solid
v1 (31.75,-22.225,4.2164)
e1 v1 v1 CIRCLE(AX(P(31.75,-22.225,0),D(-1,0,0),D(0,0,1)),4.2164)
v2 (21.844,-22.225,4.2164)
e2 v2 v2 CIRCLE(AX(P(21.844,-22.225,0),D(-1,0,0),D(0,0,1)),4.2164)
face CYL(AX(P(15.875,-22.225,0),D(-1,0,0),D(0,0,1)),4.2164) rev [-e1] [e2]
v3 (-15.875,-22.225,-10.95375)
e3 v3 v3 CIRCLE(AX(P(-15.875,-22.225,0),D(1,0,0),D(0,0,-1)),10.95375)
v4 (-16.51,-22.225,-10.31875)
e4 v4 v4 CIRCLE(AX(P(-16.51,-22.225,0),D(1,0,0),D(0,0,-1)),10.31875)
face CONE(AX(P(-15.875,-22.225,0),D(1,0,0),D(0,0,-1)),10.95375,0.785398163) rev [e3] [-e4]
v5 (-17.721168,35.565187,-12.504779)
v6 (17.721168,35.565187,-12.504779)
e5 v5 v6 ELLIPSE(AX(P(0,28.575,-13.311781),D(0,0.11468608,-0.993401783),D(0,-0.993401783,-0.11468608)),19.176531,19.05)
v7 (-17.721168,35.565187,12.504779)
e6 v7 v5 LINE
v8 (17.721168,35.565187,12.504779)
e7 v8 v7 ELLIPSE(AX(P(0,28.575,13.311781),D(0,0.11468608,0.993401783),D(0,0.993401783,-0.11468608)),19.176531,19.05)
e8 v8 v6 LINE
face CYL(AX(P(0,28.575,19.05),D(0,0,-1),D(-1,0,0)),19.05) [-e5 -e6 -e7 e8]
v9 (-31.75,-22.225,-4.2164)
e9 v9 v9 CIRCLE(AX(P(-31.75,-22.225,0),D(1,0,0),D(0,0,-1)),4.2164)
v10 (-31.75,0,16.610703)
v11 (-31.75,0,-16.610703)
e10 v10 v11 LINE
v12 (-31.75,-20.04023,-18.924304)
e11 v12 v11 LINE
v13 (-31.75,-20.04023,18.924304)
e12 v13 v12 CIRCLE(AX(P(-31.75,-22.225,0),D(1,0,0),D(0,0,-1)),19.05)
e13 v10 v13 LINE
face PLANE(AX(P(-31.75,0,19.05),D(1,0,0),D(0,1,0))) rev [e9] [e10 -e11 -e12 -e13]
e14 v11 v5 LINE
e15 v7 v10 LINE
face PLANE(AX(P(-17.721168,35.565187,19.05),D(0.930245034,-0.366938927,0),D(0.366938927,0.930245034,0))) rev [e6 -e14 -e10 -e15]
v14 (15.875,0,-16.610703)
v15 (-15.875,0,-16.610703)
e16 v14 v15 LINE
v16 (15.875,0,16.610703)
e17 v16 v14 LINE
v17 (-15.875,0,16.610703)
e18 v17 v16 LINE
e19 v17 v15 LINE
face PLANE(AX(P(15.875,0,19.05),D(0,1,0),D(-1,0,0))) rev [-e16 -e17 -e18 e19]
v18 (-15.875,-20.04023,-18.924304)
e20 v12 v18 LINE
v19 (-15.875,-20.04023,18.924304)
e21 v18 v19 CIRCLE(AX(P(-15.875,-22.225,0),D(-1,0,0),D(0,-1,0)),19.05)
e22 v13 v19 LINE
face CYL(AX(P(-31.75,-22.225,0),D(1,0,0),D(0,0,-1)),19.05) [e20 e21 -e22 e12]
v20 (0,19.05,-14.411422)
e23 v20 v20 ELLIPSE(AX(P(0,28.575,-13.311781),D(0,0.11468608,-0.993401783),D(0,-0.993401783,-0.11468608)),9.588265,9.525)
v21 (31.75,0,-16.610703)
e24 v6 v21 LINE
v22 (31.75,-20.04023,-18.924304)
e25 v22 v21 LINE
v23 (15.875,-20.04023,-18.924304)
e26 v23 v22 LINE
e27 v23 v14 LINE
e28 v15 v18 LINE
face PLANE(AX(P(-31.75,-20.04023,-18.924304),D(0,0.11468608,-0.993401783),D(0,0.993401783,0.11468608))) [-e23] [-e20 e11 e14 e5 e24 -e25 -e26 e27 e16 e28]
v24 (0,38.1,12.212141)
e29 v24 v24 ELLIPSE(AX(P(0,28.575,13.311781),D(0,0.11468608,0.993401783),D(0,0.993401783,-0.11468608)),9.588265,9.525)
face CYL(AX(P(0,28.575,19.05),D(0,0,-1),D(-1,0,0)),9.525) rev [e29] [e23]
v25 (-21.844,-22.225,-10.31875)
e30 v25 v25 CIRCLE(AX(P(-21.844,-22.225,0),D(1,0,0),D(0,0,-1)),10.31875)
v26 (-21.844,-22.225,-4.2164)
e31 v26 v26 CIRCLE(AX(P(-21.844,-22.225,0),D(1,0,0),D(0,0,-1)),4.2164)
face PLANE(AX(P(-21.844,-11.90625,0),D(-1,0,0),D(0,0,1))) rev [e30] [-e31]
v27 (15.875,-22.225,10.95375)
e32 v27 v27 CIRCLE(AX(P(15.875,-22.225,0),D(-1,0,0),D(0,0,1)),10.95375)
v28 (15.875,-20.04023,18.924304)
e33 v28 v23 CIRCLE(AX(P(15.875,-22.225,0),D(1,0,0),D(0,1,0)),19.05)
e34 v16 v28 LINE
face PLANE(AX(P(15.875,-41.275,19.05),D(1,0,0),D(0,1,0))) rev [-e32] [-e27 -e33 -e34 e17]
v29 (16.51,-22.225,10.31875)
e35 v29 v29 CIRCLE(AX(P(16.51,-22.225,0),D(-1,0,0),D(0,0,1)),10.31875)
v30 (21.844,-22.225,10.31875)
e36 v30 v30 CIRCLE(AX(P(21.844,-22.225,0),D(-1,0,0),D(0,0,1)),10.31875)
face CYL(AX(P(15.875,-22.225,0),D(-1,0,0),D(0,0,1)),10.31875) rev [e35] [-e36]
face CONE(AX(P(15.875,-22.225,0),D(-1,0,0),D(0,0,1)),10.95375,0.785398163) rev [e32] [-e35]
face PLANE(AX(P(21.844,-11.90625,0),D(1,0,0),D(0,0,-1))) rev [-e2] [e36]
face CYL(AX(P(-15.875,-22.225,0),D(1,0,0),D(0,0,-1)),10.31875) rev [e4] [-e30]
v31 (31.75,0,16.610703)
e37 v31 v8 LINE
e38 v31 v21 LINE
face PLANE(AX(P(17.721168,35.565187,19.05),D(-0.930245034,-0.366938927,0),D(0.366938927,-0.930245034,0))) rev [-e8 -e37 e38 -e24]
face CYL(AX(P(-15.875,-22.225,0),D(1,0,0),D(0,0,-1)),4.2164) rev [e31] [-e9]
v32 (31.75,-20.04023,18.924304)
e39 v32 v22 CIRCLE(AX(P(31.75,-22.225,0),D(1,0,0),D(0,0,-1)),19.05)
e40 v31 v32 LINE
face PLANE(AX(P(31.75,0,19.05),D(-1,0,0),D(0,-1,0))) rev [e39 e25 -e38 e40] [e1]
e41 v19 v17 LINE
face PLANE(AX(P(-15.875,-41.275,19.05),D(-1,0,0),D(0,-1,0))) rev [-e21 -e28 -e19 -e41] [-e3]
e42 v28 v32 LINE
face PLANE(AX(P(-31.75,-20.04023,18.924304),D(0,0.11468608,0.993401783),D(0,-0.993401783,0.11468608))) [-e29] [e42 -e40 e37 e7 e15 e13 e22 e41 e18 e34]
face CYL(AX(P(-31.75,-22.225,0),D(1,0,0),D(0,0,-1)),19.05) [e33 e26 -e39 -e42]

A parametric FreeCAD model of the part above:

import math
import FreeCAD as App
import Part
import Sketcher

V = App.Vector
Q = App.Units.Quantity


def add_polygon(sketch, points):
    """Adds a closed chain of lines whose ends are joined by coincident constraints."""
    first, n = sketch.GeometryCount, len(points)
    for a, b in zip(points, points[1:] + points[:1]):
        sketch.addGeometry(Part.LineSegment(App.Vector(*a, 0), App.Vector(*b, 0)), False)
    for i in range(n):
        sketch.addConstraint(Sketcher.Constraint("Coincident", first + i, 2, first + (i + 1) % n, 1))

doc = App.newDocument("Part")
body = doc.addObject("PartDesign::Body", "Body")

sketch1 = body.newObject("Sketcher::SketchObject", "Sketch")
sketch1.AttachmentSupport = (doc.getObject("XY_Plane"), [""])
sketch1.MapMode = "FlatFace"
sketch1.addGeometry([
    Part.LineSegment(V(31.75, 0, 0), V(17.721168, 35.565187, 0)),
    Part.ArcOfCircle(Part.Circle(V(0, 28.575, 0), V(0, 0, 1), 19.05), math.radians(21.526956), math.radians(158.473044)),
    Part.LineSegment(V(-17.721168, 35.565187, 0), V(-31.75, 0, 0)),
    Part.LineSegment(V(-31.75, 0, 0), V(-31.75, -41.275, 0)),
    Part.LineSegment(V(-31.75, -41.275, 0), V(-15.875, -41.275, 0)),
    Part.LineSegment(V(-15.875, -41.275, 0), V(-15.875, 0, 0)),
    Part.LineSegment(V(-15.875, 0, 0), V(15.875, 0, 0)),
    Part.LineSegment(V(15.875, 0, 0), V(15.875, -41.275, 0)),
    Part.LineSegment(V(15.875, -41.275, 0), V(31.75, -41.275, 0)),
    Part.LineSegment(V(31.75, -41.275, 0), V(31.75, 0, 0)),
    Part.Circle(V(0, 28.575, 0), V(0, 0, 1), 9.525),
], False)
sketch1.addConstraint([
    Sketcher.Constraint("Tangent", 0, 2, 1, 1),
    Sketcher.Constraint("Tangent", 1, 2, 2, 1),
    Sketcher.Constraint("Coincident", 2, 2, 3, 1),
    Sketcher.Constraint("Coincident", 3, 2, 4, 1),
    Sketcher.Constraint("Coincident", 4, 2, 5, 1),
    Sketcher.Constraint("Coincident", 5, 2, 6, 1),
    Sketcher.Constraint("Coincident", 6, 2, 7, 1),
    Sketcher.Constraint("Coincident", 7, 2, 8, 1),
    Sketcher.Constraint("Coincident", 8, 2, 9, 1),
    Sketcher.Constraint("Coincident", 9, 2, 0, 1),
    Sketcher.Constraint("Vertical", 3),
    Sketcher.Constraint("Horizontal", 4),
    Sketcher.Constraint("Vertical", 5),
    Sketcher.Constraint("Horizontal", 6),
    Sketcher.Constraint("Vertical", 7),
    Sketcher.Constraint("Horizontal", 8),
    Sketcher.Constraint("Vertical", 9),
    Sketcher.Constraint("Coincident", 10, 3, 1, 3),
    Sketcher.Constraint("Symmetric", 5, 2, 6, 2, -1, 1),
    Sketcher.Constraint("Symmetric", 2, 2, 9, 2, -1, 1),
    Sketcher.Constraint("Symmetric", 0, 2, 1, 2, -2),
    Sketcher.Constraint("Horizontal", 4, 2, 7, 2),
    Sketcher.Constraint("Diameter", 10, Q("0.75 in")),
    Sketcher.Constraint("Radius", 1, Q("0.75 in")),
    Sketcher.Constraint("DistanceX", 6, 1, 6, 2, Q("1.25 in")),
    Sketcher.Constraint("DistanceX", 3, 2, 8, 2, Q("2.5 in")),
    Sketcher.Constraint("DistanceY", 3, 2, 3, 1, Q("1.625 in")),
    Sketcher.Constraint("DistanceY", 3, 2, 1, 3, Q("2.75 in")),
])
pad1 = body.newObject("PartDesign::Pad", "Pad")
pad1.Profile = sketch1
pad1.Length = Q("1.5 in")
pad1.Midplane = True

sketch2 = body.newObject("Sketcher::SketchObject", "Sketch001")
sketch2.AttachmentSupport = (doc.getObject("YZ_Plane"), [""])
sketch2.MapMode = "FlatFace"
add_polygon(sketch2, [(60.195, 31.62), (-53.845, 31.62), (-53.845, -31.62), (60.195, -31.62)])
sketch2.addGeometry(Part.LineSegment(V(47.625, -11.1125, 0), V(-20.04023, -18.924304, 0)), False)
sketch2.addGeometry(Part.ArcOfCircle(Part.Circle(V(-22.225, 0, 0), V(0, 0, 1), 19.05), math.radians(83.414481), math.radians(276.585519)), False)
sketch2.addGeometry(Part.LineSegment(V(-20.04023, 18.924304, 0), V(47.625, 11.1125, 0)), False)
sketch2.addGeometry(Part.LineSegment(V(47.625, 11.1125, 0), V(47.625, -11.1125, 0)), False)
sketch2.addConstraint([
    Sketcher.Constraint("Tangent", 4, 2, 5, 2),
    Sketcher.Constraint("Tangent", 5, 1, 6, 1),
    Sketcher.Constraint("Coincident", 6, 2, 7, 1),
    Sketcher.Constraint("Coincident", 7, 2, 4, 1),
    Sketcher.Constraint("Horizontal", 0),
    Sketcher.Constraint("Vertical", 1),
    Sketcher.Constraint("Horizontal", 2),
    Sketcher.Constraint("Vertical", 3),
    Sketcher.Constraint("Vertical", 7),
    Sketcher.Constraint("Symmetric", 4, 2, 5, 1, -1),
    Sketcher.Constraint("Radius", 5, Q("0.75 in")),
    Sketcher.Constraint("DistanceY", 7, 2, 7, 1, Q("0.875 in")),
    Sketcher.Constraint("DistanceX", 5, 3, 6, 2, Q("2.75 in")),
    Sketcher.Constraint("DistanceX", 5, 3, -1, 1, Q("0.875 in")),
    Sketcher.Constraint("DistanceX", 0, 2, 0, 1, Q("114.04 mm")),
    Sketcher.Constraint("DistanceY", 1, 2, 1, 1, Q("63.24 mm")),
    Sketcher.Constraint("DistanceX", 0, 2, -1, 1, Q("53.845 mm")),
    Sketcher.Constraint("DistanceY", -1, 1, 0, 2, Q("31.62 mm")),
])
pocket1 = body.newObject("PartDesign::Pocket", "Pocket")
pocket1.Profile = sketch2
pocket1.Type = "ThroughAll"
pocket1.Midplane = True

sketch3 = body.newObject("Sketcher::SketchObject", "Sketch002")
sketch3.AttachmentSupport = (doc.getObject("XZ_Plane"), [""])
sketch3.MapMode = "FlatFace"
sketch3.AttachmentOffset = App.Placement(V(0, 0, 0.875 * 25.4), App.Rotation())
add_polygon(sketch3, [(-31.75, 0), (-15.875, 0), (-15.875, -10.95375), (-16.51, -10.31875), (-21.844, -10.31875), (-21.844, -4.2164), (-31.75, -4.2164)])
sketch3.addConstraint([
    Sketcher.Constraint("Horizontal", 0),
    Sketcher.Constraint("Vertical", 1),
    Sketcher.Constraint("Horizontal", 3),
    Sketcher.Constraint("Vertical", 4),
    Sketcher.Constraint("Horizontal", 5),
    Sketcher.Constraint("Vertical", 6),
    Sketcher.Constraint("PointOnObject", 0, 2, -1),
    Sketcher.Constraint("Angle", 2, Q("135 deg")),
    Sketcher.Constraint("DistanceX", 3, 2, 3, 1, Q("0.21 in")),
    Sketcher.Constraint("DistanceX", 5, 2, 5, 1, Q("0.39 in")),
    Sketcher.Constraint("DistanceX", 0, 1, 0, 2, Q("0.625 in")),
    Sketcher.Constraint("DistanceY", 6, 1, 6, 2, Q("0.166 in")),
    Sketcher.Constraint("DistanceX", 2, 2, -1, 1, Q("0.65 in")),
    Sketcher.Constraint("DistanceY", 2, 2, -1, 1, Q("0.40625 in")),
])
groove = body.newObject("PartDesign::Groove", "Groove")
groove.Profile = sketch3
groove.ReferenceAxis = (sketch3, ["H_Axis"])
groove.Angle = 360
doc.recompute()

mirrored = body.newObject("PartDesign::Mirrored", "Mirrored")
mirrored.Originals = [groove]
mirrored.MirrorPlane = (doc.getObject("YZ_Plane"), [""])
body.Tip = mirrored

doc.recompute()
